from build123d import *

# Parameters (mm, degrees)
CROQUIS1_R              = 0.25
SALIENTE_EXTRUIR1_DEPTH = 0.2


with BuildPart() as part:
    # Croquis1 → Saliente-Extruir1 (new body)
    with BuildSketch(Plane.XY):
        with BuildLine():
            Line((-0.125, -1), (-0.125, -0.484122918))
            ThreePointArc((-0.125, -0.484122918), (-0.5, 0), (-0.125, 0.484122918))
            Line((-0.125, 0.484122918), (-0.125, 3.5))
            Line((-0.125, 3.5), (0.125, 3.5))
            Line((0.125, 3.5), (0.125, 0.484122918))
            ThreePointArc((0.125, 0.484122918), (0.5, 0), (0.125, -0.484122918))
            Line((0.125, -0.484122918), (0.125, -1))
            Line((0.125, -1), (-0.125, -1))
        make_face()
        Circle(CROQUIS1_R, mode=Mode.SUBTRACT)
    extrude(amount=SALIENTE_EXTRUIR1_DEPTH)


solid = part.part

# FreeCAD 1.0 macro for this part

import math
import FreeCAD as App
import Part
import Sketcher
Q = App.Units.Quantity

doc = App.newDocument("Part")
body = doc.addObject("PartDesign::Body", "Body")

# Sketch on XY plane
sketch1 = doc.addObject("Sketcher::SketchObject", "Sketch")
body.addObject(sketch1)
sketch1.AttachmentSupport = (doc.XY_Plane, [""])
sketch1.MapMode = "FlatFace"
sketch1.addGeometry(Part.LineSegment(App.Vector(-0.12, -0.48, 0), App.Vector(-0.12, -1, 0)), False)
sketch1.addGeometry(Part.LineSegment(App.Vector(-0.12, -1, 0), App.Vector(0.12, -1, 0)), False)
sketch1.addGeometry(Part.LineSegment(App.Vector(0.12, -1, 0), App.Vector(0.12, -0.48, 0)), False)
sketch1.addGeometry(Part.ArcOfCircle(Part.Circle(App.Vector(0, 0, 0), App.Vector(0, 0, 1), 0.5), math.radians(-76), math.radians(76)), False)
sketch1.addGeometry(Part.LineSegment(App.Vector(0.12, 0.48, 0), App.Vector(0.12, 3.5, 0)), False)
sketch1.addGeometry(Part.LineSegment(App.Vector(0.12, 3.5, 0), App.Vector(-0.12, 3.5, 0)), False)
sketch1.addGeometry(Part.LineSegment(App.Vector(-0.12, 3.5, 0), App.Vector(-0.12, 0.48, 0)), False)
sketch1.addGeometry(Part.ArcOfCircle(Part.Circle(App.Vector(0, 0, 0), App.Vector(0, 0, 1), 0.5), math.radians(104), math.radians(256)), False)
sketch1.addGeometry(Part.Circle(App.Vector(0, 0, 0), App.Vector(0, 0, 1), 0.25), False)
sketch1.addConstraint(Sketcher.Constraint("Coincident", 0, 2, 1, 1))
sketch1.addConstraint(Sketcher.Constraint("Coincident", 1, 2, 2, 1))
sketch1.addConstraint(Sketcher.Constraint("Coincident", 2, 2, 3, 1))
sketch1.addConstraint(Sketcher.Constraint("Coincident", 3, 2, 4, 1))
sketch1.addConstraint(Sketcher.Constraint("Coincident", 4, 2, 5, 1))
sketch1.addConstraint(Sketcher.Constraint("Coincident", 5, 2, 6, 1))
sketch1.addConstraint(Sketcher.Constraint("Coincident", 6, 2, 7, 1))
sketch1.addConstraint(Sketcher.Constraint("Coincident", 7, 2, 0, 1))
sketch1.addConstraint(Sketcher.Constraint("Vertical", 0))
sketch1.addConstraint(Sketcher.Constraint("Horizontal", 1))
sketch1.addConstraint(Sketcher.Constraint("Vertical", 2))
sketch1.addConstraint(Sketcher.Constraint("Vertical", 4))
sketch1.addConstraint(Sketcher.Constraint("Horizontal", 5))
sketch1.addConstraint(Sketcher.Constraint("Vertical", 6))
sketch1.addConstraint(Sketcher.Constraint("Coincident", 3, 3, -1, 1))
sketch1.addConstraint(Sketcher.Constraint("Coincident", 7, 3, -1, 1))
sketch1.addConstraint(Sketcher.Constraint("Coincident", 8, 3, -1, 1))
sketch1.addConstraint(Sketcher.Constraint("Equal", 3, 7))
sketch1.addConstraint(Sketcher.Constraint("Horizontal", 3, 2, 6, 2))
sketch1.addConstraint(Sketcher.Constraint("Horizontal", 2, 2, 7, 2))
sketch1.addConstraint(Sketcher.Constraint("Vertical", 2, 2, 3, 2))
sketch1.addConstraint(Sketcher.Constraint("Diameter", 8, Q("0.5 mm")))
sketch1.addConstraint(Sketcher.Constraint("Radius", 3, Q("0.5 mm")))
sketch1.addConstraint(Sketcher.Constraint("DistanceY", 0, 2, -1, 1, Q("1 mm")))
sketch1.addConstraint(Sketcher.Constraint("DistanceX", 1, 1, 1, 2, Q("0.25 mm")))
sketch1.addConstraint(Sketcher.Constraint("DistanceY", -1, 1, 4, 2, Q("3.5 mm")))
pad1 = doc.addObject("PartDesign::Pad", "Pad")
body.addObject(pad1)
pad1.Profile = sketch1
pad1.Length = 0.2

doc.recompute()
